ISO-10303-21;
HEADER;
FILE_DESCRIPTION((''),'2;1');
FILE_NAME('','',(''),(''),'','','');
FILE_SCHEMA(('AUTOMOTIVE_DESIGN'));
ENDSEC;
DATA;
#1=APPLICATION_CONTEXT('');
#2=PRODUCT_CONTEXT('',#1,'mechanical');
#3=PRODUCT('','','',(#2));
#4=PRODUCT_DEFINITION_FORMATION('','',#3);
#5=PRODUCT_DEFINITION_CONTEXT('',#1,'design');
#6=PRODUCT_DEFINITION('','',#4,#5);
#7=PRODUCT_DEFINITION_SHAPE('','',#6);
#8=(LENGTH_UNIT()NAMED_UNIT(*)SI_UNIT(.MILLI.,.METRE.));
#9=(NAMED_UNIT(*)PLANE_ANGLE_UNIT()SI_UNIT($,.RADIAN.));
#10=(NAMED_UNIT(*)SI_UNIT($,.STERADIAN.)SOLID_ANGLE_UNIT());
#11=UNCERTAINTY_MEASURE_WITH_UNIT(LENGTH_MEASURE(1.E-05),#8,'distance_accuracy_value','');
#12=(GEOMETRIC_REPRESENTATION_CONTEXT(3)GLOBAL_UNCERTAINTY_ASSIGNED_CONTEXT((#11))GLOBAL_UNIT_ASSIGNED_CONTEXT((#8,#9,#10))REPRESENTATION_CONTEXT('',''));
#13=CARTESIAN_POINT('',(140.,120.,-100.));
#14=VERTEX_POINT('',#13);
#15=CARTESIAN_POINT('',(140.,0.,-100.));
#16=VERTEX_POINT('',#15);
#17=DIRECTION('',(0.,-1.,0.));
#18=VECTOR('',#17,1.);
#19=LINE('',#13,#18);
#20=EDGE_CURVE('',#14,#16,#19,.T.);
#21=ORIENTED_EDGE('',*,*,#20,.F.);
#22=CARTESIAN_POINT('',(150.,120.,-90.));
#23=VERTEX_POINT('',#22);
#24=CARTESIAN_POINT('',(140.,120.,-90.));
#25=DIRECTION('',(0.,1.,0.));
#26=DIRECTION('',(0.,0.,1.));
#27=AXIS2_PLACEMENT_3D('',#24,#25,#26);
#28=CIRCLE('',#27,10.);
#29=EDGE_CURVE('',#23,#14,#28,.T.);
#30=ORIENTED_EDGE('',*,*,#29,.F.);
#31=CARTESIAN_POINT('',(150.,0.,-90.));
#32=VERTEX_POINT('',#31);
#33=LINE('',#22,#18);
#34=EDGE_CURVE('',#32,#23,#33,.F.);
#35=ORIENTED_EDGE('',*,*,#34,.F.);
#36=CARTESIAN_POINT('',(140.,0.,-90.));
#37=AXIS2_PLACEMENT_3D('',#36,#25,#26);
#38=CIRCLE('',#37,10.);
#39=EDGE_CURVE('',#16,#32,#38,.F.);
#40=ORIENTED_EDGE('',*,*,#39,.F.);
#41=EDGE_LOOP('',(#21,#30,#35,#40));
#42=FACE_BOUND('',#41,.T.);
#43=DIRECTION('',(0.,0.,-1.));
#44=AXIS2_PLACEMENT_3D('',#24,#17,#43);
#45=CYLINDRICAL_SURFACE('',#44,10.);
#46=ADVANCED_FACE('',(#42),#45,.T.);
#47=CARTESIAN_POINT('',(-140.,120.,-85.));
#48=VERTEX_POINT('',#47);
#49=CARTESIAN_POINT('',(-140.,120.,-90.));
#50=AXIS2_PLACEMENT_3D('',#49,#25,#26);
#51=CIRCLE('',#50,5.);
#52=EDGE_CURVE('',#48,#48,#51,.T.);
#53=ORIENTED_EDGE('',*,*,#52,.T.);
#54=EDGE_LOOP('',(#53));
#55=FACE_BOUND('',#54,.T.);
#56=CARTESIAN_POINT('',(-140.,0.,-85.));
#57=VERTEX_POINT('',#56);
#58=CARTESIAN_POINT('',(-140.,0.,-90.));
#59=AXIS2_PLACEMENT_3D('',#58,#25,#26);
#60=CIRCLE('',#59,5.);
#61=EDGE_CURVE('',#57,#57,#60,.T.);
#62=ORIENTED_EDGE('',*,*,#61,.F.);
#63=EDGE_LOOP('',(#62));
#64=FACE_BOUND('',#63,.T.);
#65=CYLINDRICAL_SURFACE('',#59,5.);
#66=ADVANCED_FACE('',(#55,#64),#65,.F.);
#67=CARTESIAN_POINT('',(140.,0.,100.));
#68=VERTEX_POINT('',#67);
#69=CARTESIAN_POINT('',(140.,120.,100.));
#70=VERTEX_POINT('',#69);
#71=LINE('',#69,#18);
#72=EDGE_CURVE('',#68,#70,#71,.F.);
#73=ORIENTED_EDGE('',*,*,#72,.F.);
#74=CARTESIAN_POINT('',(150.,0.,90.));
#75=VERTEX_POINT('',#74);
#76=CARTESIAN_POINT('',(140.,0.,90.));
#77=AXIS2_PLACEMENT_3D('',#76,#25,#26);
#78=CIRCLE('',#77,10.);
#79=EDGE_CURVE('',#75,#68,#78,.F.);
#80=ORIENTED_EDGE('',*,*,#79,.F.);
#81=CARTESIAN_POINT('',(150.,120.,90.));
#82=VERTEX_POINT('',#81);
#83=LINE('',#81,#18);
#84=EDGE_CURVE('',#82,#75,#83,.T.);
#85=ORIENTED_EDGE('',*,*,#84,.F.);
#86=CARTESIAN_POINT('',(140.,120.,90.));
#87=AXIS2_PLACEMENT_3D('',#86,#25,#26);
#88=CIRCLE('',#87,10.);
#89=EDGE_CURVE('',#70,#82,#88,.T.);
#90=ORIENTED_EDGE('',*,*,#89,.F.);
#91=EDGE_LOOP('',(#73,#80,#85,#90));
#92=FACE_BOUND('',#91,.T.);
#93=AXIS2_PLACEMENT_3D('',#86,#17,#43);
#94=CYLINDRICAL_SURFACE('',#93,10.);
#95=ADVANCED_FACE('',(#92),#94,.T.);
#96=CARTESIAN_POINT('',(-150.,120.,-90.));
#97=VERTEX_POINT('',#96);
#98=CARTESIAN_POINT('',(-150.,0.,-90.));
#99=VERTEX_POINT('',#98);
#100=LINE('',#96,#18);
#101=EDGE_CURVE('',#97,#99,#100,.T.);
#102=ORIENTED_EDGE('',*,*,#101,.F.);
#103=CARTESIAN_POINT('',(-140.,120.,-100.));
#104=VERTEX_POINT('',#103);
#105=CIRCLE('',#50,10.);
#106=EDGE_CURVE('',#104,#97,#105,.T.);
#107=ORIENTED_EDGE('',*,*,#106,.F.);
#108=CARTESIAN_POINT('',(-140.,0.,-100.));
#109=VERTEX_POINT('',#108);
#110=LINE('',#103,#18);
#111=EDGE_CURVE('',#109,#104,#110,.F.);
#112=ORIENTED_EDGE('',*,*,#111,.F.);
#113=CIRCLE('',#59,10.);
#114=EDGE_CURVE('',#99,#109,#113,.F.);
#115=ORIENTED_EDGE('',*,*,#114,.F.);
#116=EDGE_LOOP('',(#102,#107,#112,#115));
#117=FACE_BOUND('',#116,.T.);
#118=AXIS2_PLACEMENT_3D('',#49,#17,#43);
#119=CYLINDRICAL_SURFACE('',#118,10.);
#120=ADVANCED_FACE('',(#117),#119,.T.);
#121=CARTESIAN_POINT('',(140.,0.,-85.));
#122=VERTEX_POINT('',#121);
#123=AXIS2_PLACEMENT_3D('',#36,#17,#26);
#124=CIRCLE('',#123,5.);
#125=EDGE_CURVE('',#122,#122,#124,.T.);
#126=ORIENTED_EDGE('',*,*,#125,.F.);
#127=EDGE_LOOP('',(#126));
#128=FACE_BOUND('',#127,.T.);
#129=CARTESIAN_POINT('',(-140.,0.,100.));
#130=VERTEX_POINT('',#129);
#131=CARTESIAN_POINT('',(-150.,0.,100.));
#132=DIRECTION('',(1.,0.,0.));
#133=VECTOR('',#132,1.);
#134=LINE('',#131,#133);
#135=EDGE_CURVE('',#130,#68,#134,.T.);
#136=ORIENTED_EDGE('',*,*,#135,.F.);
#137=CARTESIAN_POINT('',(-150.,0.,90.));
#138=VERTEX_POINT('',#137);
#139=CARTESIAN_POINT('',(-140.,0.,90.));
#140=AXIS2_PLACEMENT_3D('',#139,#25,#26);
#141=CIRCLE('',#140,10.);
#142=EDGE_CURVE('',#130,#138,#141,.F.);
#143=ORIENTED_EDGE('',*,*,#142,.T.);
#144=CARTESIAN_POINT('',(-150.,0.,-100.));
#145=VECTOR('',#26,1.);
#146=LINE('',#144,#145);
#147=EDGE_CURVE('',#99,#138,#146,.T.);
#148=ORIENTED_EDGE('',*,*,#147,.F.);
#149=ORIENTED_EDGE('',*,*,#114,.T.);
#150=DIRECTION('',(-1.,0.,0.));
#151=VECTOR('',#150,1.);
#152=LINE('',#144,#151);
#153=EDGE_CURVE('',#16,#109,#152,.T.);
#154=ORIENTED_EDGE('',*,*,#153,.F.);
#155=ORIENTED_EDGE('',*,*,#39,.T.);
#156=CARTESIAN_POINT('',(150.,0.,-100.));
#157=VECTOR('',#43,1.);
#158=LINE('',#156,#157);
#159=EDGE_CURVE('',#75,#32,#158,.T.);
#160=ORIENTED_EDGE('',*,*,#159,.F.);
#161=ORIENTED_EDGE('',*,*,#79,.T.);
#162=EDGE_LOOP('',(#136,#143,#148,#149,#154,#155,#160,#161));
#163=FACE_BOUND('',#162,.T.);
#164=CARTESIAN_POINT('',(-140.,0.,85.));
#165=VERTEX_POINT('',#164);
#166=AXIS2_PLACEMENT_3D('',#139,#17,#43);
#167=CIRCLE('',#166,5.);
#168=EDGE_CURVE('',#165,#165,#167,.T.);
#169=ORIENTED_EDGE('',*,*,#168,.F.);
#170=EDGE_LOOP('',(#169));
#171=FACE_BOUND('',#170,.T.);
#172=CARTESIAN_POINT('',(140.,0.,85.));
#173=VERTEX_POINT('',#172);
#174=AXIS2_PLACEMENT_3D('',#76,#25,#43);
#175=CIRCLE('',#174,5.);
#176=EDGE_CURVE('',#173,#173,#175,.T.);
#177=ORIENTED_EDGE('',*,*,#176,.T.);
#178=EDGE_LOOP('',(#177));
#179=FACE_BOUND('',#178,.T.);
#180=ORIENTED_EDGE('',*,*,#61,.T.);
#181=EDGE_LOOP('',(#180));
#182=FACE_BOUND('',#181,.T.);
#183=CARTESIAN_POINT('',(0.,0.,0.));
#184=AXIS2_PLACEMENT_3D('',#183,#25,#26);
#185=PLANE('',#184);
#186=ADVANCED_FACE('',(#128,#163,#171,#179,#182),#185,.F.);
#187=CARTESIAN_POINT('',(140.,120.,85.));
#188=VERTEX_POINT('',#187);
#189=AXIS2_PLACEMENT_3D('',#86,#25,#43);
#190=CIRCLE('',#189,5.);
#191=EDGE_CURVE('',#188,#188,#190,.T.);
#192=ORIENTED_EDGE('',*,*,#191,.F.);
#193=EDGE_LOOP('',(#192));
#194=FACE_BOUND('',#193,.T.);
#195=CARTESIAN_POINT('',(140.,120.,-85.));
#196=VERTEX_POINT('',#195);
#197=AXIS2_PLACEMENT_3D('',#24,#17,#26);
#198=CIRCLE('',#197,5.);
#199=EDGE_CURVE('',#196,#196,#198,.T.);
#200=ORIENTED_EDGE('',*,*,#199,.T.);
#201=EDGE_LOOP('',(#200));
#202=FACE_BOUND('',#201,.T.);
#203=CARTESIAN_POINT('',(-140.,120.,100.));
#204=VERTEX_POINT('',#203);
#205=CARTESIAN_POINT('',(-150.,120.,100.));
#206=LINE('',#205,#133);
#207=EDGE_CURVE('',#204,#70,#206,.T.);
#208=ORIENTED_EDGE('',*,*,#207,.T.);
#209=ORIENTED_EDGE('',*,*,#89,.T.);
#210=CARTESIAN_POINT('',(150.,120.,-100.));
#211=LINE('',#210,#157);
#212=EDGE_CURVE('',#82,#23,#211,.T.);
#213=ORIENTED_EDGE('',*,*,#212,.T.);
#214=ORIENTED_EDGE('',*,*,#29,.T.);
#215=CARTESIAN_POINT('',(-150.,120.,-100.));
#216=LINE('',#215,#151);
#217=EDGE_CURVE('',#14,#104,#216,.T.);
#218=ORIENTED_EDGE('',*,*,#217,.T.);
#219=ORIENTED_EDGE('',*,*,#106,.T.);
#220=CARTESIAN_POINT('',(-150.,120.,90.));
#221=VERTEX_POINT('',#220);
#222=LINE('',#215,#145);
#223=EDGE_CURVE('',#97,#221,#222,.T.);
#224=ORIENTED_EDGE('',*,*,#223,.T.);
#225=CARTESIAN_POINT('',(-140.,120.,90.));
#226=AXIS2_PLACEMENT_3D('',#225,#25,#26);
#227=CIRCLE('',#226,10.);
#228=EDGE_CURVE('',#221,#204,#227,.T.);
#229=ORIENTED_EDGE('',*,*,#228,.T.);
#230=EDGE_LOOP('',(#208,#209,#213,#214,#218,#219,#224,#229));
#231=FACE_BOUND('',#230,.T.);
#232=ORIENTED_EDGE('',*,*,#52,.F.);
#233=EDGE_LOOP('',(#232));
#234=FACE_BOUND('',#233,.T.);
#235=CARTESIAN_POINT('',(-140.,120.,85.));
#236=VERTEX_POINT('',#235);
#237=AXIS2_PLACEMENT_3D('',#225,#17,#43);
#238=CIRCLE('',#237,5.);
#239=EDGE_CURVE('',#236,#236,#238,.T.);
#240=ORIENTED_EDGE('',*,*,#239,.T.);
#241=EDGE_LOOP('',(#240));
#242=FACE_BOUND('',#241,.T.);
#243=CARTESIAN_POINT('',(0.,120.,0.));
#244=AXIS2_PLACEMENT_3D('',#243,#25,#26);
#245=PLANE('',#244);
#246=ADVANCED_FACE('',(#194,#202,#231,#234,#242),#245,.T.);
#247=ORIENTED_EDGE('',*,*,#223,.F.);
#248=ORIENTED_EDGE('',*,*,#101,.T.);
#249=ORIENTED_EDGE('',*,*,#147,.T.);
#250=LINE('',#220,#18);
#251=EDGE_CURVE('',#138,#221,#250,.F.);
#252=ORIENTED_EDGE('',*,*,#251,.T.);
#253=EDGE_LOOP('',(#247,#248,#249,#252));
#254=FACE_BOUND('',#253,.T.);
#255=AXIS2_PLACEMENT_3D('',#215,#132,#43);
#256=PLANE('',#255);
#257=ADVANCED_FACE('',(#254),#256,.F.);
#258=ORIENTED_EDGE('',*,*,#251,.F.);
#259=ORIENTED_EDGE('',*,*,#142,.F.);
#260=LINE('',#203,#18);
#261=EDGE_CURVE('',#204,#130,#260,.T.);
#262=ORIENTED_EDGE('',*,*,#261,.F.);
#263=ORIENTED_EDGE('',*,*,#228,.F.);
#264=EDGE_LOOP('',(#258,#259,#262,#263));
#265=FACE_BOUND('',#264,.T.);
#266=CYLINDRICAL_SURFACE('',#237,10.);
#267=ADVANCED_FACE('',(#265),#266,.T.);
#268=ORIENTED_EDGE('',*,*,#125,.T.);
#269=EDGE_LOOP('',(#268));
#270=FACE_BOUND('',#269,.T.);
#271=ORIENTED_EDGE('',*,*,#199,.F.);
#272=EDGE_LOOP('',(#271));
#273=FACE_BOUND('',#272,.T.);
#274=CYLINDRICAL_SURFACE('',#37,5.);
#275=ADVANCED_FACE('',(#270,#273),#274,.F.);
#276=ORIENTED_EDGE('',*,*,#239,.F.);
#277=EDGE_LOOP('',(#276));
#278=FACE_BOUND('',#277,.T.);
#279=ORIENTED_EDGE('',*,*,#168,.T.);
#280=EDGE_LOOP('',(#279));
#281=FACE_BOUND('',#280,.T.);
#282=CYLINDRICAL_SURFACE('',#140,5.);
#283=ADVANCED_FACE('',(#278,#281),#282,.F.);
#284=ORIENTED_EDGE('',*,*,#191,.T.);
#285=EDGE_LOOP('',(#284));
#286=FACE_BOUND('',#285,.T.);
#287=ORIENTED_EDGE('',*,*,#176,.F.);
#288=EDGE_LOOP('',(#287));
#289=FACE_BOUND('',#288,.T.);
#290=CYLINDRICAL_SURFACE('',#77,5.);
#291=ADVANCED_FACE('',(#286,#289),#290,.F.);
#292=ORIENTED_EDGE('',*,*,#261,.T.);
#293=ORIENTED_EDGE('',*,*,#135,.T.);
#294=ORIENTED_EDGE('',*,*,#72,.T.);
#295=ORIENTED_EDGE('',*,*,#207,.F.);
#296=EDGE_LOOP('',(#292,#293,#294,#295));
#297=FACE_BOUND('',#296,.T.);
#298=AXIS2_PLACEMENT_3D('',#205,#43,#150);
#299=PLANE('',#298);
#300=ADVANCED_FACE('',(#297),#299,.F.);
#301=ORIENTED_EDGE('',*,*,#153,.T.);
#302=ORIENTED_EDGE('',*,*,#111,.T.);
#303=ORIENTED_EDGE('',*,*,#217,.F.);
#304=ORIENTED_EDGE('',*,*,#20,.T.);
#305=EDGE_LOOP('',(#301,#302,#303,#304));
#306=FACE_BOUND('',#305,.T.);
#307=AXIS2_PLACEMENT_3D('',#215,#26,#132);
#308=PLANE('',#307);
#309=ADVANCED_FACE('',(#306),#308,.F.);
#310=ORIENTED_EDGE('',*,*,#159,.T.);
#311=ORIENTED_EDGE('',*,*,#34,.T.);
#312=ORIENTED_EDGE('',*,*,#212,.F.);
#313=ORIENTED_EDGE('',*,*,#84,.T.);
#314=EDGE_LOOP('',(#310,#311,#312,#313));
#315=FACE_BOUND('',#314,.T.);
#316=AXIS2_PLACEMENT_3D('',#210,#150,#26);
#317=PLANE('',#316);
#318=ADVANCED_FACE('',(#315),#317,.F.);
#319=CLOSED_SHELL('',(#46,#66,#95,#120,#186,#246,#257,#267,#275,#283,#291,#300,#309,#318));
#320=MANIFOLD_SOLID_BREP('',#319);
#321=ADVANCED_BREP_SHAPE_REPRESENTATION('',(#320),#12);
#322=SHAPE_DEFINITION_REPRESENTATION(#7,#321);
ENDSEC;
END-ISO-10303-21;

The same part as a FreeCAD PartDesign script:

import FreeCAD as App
import Part
import Sketcher

V = App.Vector
Q = App.Units.Quantity


def edges_at(feature, points):
    """Names of the edges that pass closest to the given points."""
    edges = feature.Shape.Edges
    near = lambda p: min(range(len(edges)), key=lambda i: edges[i].distToShape(Part.Vertex(*p))[0])
    return sorted({f"Edge{near(p) + 1}" for p in points})

doc = App.newDocument("Part")
body = doc.addObject("PartDesign::Body", "Body")

# Sketch on XZ plane
sketch1 = body.newObject("Sketcher::SketchObject", "Sketch")
sketch1.AttachmentSupport = (doc.getObject("XZ_Plane"), [""])
sketch1.MapMode = "FlatFace"
sketch1.addGeometry(Part.LineSegment(V(-150, -100, 0), V(-150, 100, 0)), False)
sketch1.addGeometry(Part.LineSegment(V(-150, 100, 0), V(150, 100, 0)), False)
sketch1.addGeometry(Part.LineSegment(V(150, 100, 0), V(150, -100, 0)), False)
sketch1.addGeometry(Part.LineSegment(V(150, -100, 0), V(-150, -100, 0)), False)
sketch1.addConstraint(Sketcher.Constraint("Coincident", 0, 2, 1, 1))
sketch1.addConstraint(Sketcher.Constraint("Coincident", 1, 2, 2, 1))
sketch1.addConstraint(Sketcher.Constraint("Coincident", 2, 2, 3, 1))
sketch1.addConstraint(Sketcher.Constraint("Coincident", 3, 2, 0, 1))
sketch1.addConstraint(Sketcher.Constraint("Vertical", 0))
sketch1.addConstraint(Sketcher.Constraint("Horizontal", 1))
sketch1.addConstraint(Sketcher.Constraint("Vertical", 2))
sketch1.addConstraint(Sketcher.Constraint("Horizontal", 3))
sketch1.addConstraint(Sketcher.Constraint("Symmetric", 0, 2, 2, 2, -1, 1))
sketch1.addConstraint(Sketcher.Constraint("DistanceX", 1, 1, 1, 2, Q("300 mm")))
sketch1.addConstraint(Sketcher.Constraint("DistanceY", 0, 1, 0, 2, Q("200 mm")))
pad1 = body.newObject("PartDesign::Pad", "Pad")
pad1.Profile = sketch1
pad1.Length = 120
pad1.Reversed = True
doc.recompute()

fillet = body.newObject("PartDesign::Fillet", "Fillet")
fillet.Base = (pad1, edges_at(pad1, [
    (-150, 60, -100),
    (150, 60, -100),
    (150, 60, 100),
    (-150, 60, 100),
]))
fillet.Radius = 10

# Sketch on XZ plane
sketch2 = body.newObject("Sketcher::SketchObject", "Sketch001")
sketch2.AttachmentSupport = (doc.getObject("XZ_Plane"), [""])
sketch2.MapMode = "FlatFace"
sketch2.AttachmentOffset = App.Placement(V(0, 0, -120), App.Rotation())
sketch2.addGeometry(Part.Circle(V(-140, -90, 0), V(0, 0, 1), 5), False)
sketch2.addConstraint(Sketcher.Constraint("Diameter", 0, Q("10 mm")))
sketch2.addConstraint(Sketcher.Constraint("DistanceX", 0, 3, -1, 1, Q("140 mm")))
sketch2.addConstraint(Sketcher.Constraint("DistanceY", 0, 3, -1, 1, Q("90 mm")))
pocket1 = body.newObject("PartDesign::Pocket", "Pocket")
pocket1.Profile = sketch2
pocket1.Type = "ThroughAll"
pocket1.Reversed = True
doc.recompute()

mirrored = body.newObject("PartDesign::Mirrored", "Mirrored")
mirrored.Originals = [pocket1]
mirrored.MirrorPlane = (doc.getObject("XY_Plane"), [""])
body.Tip = mirrored
doc.recompute()

mirrored2 = body.newObject("PartDesign::Mirrored", "Mirrored001")
mirrored2.Originals = [pocket1]
mirrored2.MirrorPlane = (doc.getObject("YZ_Plane"), [""])
body.Tip = mirrored2

# Sketch on XZ plane
sketch3 = body.newObject("Sketcher::SketchObject", "Sketch002")
sketch3.AttachmentSupport = (doc.getObject("XZ_Plane"), [""])
sketch3.MapMode = "FlatFace"
sketch3.AttachmentOffset = App.Placement(V(0, 0, -120), App.Rotation())
sketch3.addGeometry(Part.Circle(V(140, 90, 0), V(0, 0, 1), 5), False)
sketch3.addConstraint(Sketcher.Constraint("Diameter", 0, Q("10 mm")))
sketch3.addConstraint(Sketcher.Constraint("DistanceX", -1, 1, 0, 3, Q("140 mm")))
sketch3.addConstraint(Sketcher.Constraint("DistanceY", -1, 1, 0, 3, Q("90 mm")))
pocket2 = body.newObject("PartDesign::Pocket", "Pocket001")
pocket2.Profile = sketch3
pocket2.Type = "ThroughAll"
pocket2.Reversed = True

doc.recompute()
